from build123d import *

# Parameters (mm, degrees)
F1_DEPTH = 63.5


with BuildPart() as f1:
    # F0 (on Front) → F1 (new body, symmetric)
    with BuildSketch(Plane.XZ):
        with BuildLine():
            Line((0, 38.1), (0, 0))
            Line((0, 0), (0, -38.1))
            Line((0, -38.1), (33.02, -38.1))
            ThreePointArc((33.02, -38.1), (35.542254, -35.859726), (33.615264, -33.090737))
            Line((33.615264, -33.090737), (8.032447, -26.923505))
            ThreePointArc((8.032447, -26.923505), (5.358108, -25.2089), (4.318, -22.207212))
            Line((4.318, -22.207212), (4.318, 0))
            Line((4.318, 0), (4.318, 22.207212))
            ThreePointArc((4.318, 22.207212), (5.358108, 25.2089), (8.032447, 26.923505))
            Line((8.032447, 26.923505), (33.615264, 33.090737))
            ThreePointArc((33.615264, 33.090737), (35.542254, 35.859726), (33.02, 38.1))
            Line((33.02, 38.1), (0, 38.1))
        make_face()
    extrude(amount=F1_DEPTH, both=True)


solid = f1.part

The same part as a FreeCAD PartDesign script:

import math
import FreeCAD as App
import Part
import Sketcher

V = App.Vector
Q = App.Units.Quantity

doc = App.newDocument("Part")
body = doc.addObject("PartDesign::Body", "Body")

sketch1 = body.newObject("Sketcher::SketchObject", "Sketch")
sketch1.AttachmentSupport = (doc.getObject("XZ_Plane"), [""])
sketch1.MapMode = "FlatFace"
sketch1.addGeometry(Part.LineSegment(V(0, 38.1, 0), V(0, -38.1, 0)), False)
sketch1.addGeometry(Part.LineSegment(V(0, -38.1, 0), V(33, -38.1, 0)), False)
sketch1.addGeometry(Part.ArcOfCircle(Part.Circle(V(33, -35.6, 0), V(0, 0, 1), 2.5), math.radians(-90), math.radians(76)), False)
sketch1.addGeometry(Part.LineSegment(V(33.6, -33.1, 0), V(8, -26.9, 0)), False)
sketch1.addGeometry(Part.ArcOfCircle(Part.Circle(V(9.2, -22.2, 0), V(0, 0, 1), 4.9), math.radians(-180), math.radians(-104)), False)
sketch1.addGeometry(Part.LineSegment(V(4.3, -22.2, 0), V(4.3, 22.2, 0)), False)
sketch1.addGeometry(Part.ArcOfCircle(Part.Circle(V(9.2, 22.2, 0), V(0, 0, 1), 4.9), math.radians(104), math.radians(180)), False)
sketch1.addGeometry(Part.LineSegment(V(8, 26.9, 0), V(33.6, 33.1, 0)), False)
sketch1.addGeometry(Part.ArcOfCircle(Part.Circle(V(33, 35.6, 0), V(0, 0, 1), 2.5), math.radians(-76), math.radians(90)), False)
sketch1.addGeometry(Part.LineSegment(V(33, 38.1, 0), V(0, 38.1, 0)), False)
sketch1.addConstraint(Sketcher.Constraint("Coincident", 0, 2, 1, 1))
sketch1.addConstraint(Sketcher.Constraint("Tangent", 1, 2, 2, 1))
sketch1.addConstraint(Sketcher.Constraint("Tangent", 2, 2, 3, 1))
sketch1.addConstraint(Sketcher.Constraint("Tangent", 3, 2, 4, 2))
sketch1.addConstraint(Sketcher.Constraint("Tangent", 4, 1, 5, 1))
sketch1.addConstraint(Sketcher.Constraint("Tangent", 5, 2, 6, 2))
sketch1.addConstraint(Sketcher.Constraint("Tangent", 6, 1, 7, 1))
sketch1.addConstraint(Sketcher.Constraint("Tangent", 7, 2, 8, 1))
sketch1.addConstraint(Sketcher.Constraint("Tangent", 8, 2, 9, 1))
sketch1.addConstraint(Sketcher.Constraint("Coincident", 9, 2, 0, 1))
sketch1.addConstraint(Sketcher.Constraint("Vertical", 0))
sketch1.addConstraint(Sketcher.Constraint("Horizontal", 1))
sketch1.addConstraint(Sketcher.Constraint("Vertical", 5))
sketch1.addConstraint(Sketcher.Constraint("Horizontal", 9))
sketch1.addConstraint(Sketcher.Constraint("Equal", 4, 6))
sketch1.addConstraint(Sketcher.Constraint("Equal", 2, 8))
sketch1.addConstraint(Sketcher.Constraint("Symmetric", 0, 2, 9, 2, -1, 1))
sketch1.addConstraint(Sketcher.Constraint("Symmetric", 3, 2, 6, 1, -1))
sketch1.addConstraint(Sketcher.Constraint("Radius", 2, Q("0.1 in")))
sketch1.addConstraint(Sketcher.Constraint("DistanceY", 0, 2, 0, 1, Q("3 in")))
sketch1.addConstraint(Sketcher.Constraint("DistanceX", 1, 1, 1, 2, Q("1.3 in")))
sketch1.addConstraint(Sketcher.Constraint("Radius", 4, Q("0.1910001 in")))
sketch1.addConstraint(Sketcher.Constraint("DistanceX", -1, 1, 4, 1, Q("0.17 in")))
sketch1.addConstraint(Sketcher.Constraint("DistanceY", 5, 1, 5, 2, Q("44.414424 mm")))
pad1 = body.newObject("PartDesign::Pad", "Pad")
pad1.Profile = sketch1
pad1.Length = Q("5 in")
pad1.Midplane = True

doc.recompute()
